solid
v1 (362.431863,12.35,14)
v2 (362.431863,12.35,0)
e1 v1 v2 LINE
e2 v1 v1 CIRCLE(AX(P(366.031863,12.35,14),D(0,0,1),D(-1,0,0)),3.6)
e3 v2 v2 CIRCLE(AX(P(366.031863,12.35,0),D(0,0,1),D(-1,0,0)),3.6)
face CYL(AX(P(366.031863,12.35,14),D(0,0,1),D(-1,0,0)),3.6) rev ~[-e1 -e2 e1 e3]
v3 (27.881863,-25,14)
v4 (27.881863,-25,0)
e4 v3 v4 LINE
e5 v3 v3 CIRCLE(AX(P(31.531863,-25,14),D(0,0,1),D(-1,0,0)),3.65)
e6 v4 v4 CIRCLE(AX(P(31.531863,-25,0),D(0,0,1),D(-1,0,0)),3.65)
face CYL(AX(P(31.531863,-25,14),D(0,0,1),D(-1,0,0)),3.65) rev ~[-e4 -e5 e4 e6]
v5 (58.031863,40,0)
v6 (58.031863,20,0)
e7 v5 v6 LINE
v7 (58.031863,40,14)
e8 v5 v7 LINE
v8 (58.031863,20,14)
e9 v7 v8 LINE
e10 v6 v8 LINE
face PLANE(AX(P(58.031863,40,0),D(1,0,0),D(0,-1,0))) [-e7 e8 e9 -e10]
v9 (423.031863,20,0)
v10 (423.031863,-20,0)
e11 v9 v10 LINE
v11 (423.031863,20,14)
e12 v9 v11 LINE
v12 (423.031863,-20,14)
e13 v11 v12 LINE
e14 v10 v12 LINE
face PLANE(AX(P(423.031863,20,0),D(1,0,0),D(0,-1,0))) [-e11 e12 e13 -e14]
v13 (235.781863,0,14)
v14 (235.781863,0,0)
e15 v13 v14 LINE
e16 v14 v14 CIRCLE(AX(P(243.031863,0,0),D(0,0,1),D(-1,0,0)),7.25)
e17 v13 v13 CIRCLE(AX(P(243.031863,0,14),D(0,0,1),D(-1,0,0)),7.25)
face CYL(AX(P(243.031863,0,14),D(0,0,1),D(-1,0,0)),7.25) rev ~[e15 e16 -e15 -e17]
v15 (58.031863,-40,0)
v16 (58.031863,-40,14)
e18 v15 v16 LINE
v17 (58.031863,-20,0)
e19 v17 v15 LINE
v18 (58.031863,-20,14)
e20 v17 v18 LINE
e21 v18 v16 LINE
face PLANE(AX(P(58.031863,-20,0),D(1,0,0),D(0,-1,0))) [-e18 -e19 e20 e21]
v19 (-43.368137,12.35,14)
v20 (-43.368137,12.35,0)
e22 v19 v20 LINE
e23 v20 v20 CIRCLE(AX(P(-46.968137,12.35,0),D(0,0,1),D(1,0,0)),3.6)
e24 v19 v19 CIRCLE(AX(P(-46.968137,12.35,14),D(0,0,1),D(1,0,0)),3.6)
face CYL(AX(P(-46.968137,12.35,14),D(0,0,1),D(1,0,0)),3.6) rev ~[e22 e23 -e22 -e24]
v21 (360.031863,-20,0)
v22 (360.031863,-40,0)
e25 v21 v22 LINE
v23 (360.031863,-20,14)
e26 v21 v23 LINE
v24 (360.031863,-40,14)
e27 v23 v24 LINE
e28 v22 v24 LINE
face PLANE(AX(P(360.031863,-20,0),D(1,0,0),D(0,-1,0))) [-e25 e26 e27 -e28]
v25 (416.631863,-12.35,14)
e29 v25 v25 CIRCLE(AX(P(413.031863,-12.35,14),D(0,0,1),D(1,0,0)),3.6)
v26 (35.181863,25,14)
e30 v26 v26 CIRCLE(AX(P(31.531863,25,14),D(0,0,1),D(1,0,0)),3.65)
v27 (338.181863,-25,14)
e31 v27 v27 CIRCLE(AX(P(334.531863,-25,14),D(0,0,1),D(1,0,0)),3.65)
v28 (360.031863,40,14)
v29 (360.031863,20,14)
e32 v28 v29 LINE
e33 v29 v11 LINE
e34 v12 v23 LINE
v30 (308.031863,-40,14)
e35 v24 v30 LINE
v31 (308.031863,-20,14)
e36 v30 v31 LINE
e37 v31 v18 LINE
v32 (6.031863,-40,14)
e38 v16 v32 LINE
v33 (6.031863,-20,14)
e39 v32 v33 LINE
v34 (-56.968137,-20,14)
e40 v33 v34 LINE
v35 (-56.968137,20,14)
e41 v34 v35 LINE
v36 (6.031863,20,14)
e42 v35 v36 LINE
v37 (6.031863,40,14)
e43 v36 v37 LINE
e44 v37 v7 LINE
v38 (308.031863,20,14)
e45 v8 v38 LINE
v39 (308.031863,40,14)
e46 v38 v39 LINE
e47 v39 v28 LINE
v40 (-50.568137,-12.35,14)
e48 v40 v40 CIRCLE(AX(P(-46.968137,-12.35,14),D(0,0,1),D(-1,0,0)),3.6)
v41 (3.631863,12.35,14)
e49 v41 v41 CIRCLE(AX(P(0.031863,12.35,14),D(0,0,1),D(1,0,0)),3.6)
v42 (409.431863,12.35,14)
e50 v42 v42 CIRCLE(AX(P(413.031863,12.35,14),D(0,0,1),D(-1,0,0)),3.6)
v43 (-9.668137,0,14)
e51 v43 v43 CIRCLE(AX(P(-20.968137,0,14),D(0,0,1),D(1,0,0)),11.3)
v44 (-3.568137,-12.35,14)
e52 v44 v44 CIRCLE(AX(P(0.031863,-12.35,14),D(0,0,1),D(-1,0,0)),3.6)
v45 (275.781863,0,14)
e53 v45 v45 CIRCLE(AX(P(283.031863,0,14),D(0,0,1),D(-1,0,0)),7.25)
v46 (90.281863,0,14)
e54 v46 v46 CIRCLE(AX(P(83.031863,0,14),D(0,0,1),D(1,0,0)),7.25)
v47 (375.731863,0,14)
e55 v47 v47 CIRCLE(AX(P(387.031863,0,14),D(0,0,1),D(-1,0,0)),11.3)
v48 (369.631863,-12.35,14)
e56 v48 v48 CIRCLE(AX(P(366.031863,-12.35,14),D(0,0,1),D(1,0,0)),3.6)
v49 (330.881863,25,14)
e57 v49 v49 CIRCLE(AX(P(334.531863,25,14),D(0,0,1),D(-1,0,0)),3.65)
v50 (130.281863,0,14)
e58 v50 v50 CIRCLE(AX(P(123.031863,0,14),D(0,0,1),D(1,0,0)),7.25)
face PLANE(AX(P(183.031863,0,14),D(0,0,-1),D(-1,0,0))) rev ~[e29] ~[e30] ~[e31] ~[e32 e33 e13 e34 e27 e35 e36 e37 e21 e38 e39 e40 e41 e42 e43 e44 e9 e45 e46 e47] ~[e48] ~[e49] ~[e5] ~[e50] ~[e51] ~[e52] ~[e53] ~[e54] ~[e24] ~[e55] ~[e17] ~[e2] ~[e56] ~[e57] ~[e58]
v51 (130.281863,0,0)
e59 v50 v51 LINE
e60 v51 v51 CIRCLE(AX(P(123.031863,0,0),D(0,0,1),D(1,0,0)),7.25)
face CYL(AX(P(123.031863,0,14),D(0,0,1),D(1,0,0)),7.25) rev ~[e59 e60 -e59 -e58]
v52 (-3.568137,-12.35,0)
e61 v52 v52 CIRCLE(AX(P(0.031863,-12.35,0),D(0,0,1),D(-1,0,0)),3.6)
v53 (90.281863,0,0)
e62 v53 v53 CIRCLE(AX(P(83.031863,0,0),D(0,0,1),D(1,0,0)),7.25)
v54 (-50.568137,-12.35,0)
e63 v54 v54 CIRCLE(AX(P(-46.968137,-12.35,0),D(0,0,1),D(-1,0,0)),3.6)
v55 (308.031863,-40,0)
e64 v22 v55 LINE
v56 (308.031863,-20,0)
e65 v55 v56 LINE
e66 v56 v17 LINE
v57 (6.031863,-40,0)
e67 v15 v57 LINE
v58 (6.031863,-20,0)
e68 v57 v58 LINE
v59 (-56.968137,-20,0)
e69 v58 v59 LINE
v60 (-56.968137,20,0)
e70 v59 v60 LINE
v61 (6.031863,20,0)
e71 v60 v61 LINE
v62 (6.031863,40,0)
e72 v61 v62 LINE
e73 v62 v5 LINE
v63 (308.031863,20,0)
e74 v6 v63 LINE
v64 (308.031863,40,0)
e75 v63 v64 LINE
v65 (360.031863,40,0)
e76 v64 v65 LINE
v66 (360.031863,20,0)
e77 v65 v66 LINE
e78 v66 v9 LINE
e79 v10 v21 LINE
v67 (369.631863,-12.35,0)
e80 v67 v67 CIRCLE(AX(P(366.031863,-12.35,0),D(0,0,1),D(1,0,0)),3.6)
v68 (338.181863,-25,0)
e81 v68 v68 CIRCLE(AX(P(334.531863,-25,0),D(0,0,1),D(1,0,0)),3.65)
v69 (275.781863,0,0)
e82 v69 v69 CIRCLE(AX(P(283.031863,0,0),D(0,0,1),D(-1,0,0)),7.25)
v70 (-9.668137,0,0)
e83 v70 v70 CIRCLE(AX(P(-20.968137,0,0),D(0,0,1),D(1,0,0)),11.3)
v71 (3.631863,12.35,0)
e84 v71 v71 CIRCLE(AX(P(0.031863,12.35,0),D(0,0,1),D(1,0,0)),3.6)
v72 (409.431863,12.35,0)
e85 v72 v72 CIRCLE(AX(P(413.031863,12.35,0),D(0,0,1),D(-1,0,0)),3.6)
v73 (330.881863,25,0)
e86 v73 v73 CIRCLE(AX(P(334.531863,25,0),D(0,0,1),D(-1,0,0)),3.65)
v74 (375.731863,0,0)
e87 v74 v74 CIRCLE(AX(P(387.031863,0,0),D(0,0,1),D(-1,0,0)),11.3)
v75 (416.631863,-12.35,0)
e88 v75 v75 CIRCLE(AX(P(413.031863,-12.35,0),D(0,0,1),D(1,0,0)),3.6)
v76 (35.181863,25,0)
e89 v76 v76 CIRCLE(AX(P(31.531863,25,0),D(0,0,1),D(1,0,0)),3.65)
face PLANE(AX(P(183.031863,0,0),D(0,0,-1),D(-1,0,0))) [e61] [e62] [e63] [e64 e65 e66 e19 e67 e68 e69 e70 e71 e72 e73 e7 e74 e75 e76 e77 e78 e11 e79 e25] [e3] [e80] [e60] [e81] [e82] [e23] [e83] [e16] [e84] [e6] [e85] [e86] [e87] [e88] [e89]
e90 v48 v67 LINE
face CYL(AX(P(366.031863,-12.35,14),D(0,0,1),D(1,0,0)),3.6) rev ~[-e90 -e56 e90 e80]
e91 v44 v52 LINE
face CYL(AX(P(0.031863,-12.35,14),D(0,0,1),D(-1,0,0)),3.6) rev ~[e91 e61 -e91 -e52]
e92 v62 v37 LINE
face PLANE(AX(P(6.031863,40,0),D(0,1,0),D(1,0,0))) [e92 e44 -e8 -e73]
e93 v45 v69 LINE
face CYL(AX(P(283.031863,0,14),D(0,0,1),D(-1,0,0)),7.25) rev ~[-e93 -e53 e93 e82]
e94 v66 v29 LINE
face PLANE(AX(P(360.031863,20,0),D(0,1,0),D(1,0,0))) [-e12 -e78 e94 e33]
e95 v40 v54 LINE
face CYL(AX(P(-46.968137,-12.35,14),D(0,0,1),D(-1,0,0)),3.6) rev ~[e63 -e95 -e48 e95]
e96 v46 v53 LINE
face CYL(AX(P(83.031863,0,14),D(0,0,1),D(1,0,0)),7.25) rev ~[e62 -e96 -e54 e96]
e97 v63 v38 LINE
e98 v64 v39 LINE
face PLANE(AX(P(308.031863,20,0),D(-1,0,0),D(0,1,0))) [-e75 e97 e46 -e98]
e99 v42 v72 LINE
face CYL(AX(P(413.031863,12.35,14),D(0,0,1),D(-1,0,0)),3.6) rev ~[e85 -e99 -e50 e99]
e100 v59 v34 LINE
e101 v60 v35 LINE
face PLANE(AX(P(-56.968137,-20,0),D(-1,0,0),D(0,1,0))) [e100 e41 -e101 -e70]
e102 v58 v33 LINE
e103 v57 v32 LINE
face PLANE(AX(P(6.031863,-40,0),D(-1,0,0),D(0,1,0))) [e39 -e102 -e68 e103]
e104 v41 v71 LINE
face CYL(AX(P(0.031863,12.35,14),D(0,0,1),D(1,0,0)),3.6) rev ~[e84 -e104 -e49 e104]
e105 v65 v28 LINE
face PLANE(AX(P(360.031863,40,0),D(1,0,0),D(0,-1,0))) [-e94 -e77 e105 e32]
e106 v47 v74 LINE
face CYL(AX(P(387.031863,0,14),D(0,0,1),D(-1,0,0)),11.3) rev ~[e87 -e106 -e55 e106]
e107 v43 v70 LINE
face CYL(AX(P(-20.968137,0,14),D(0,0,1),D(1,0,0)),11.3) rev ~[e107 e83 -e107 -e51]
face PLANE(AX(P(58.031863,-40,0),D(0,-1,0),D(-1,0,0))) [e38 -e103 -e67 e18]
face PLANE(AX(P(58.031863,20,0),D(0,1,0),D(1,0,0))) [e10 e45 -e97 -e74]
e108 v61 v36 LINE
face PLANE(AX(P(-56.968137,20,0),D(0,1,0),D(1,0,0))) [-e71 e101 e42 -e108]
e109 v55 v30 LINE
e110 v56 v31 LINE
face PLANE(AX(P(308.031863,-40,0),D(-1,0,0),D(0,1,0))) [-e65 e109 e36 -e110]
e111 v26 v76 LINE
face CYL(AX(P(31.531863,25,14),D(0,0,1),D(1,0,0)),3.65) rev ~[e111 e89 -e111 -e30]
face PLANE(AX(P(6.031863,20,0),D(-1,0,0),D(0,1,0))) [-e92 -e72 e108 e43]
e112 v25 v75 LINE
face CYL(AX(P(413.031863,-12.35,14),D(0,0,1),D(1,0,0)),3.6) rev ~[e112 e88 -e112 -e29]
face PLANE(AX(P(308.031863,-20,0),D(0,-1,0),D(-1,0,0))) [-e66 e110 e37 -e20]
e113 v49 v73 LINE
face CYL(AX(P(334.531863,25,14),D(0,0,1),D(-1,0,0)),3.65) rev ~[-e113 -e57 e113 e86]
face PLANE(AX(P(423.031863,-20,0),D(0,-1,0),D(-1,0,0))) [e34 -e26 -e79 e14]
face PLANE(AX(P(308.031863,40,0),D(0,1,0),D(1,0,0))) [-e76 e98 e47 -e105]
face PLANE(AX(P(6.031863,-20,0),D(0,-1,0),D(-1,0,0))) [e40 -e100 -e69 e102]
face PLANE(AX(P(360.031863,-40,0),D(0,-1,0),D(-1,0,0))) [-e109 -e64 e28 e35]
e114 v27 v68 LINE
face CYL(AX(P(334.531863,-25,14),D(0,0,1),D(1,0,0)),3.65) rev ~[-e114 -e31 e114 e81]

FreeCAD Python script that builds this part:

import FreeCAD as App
import Part
import Sketcher
Q = App.Units.Quantity

doc = App.newDocument("Part")
params = doc.addObject("Spreadsheet::Sheet", "Params")
for row, (alias, value) in enumerate([
    ("sketch1_width", "63 mm"),
    ("sketch1_width2", "52 mm"),
    ("sketch1_width3", "250 mm"),
    ("sketch1_height", "40 mm"),
    ("sketch1_height2", "20 mm"),
    ("pad1_length", "14 mm"),
    ("sketch2_diameter", "22.6 mm"),
    ("sketch2_diameter2", "7.2 mm"),
    ("sketch2_diameter3", "7.3 mm"),
    ("sketch2_diameter4", "14.5 mm"),
    ("pocket1_length", "14 mm"),
], start=1):
    params.set(f"A{row}", alias)
    params.set(f"B{row}", "=" + value)
    params.setAlias(f"B{row}", alias)

body = doc.addObject("PartDesign::Body", "Body")

# Sketch on XY plane
sketch1 = doc.addObject("Sketcher::SketchObject", "Sketch")
body.addObject(sketch1)
sketch1.AttachmentSupport = (doc.XY_Plane, [""])
sketch1.MapMode = "FlatFace"
sketch1.addGeometry([
    Part.LineSegment(App.Vector(-57, 20, 0), App.Vector(-57, -20, 0)),  # 0
    Part.LineSegment(App.Vector(-57, -20, 0), App.Vector(6, -20, 0)),  # 1
    Part.LineSegment(App.Vector(6, -20, 0), App.Vector(6, -40, 0)),  # 2
    Part.LineSegment(App.Vector(6, -40, 0), App.Vector(58, -40, 0)),  # 3
    Part.LineSegment(App.Vector(58, -40, 0), App.Vector(58, -20, 0)),  # 4
    Part.LineSegment(App.Vector(58, -20, 0), App.Vector(308, -20, 0)),  # 5
    Part.LineSegment(App.Vector(308, -20, 0), App.Vector(308, -40, 0)),  # 6
    Part.LineSegment(App.Vector(308, -40, 0), App.Vector(360, -40, 0)),  # 7
    Part.LineSegment(App.Vector(360, -40, 0), App.Vector(360, -20, 0)),  # 8
    Part.LineSegment(App.Vector(360, -20, 0), App.Vector(423, -20, 0)),  # 9
    Part.LineSegment(App.Vector(423, -20, 0), App.Vector(423, 20, 0)),  # 10
    Part.LineSegment(App.Vector(423, 20, 0), App.Vector(360, 20, 0)),  # 11
    Part.LineSegment(App.Vector(360, 20, 0), App.Vector(360, 40, 0)),  # 12
    Part.LineSegment(App.Vector(360, 40, 0), App.Vector(308, 40, 0)),  # 13
    Part.LineSegment(App.Vector(308, 40, 0), App.Vector(308, 20, 0)),  # 14
    Part.LineSegment(App.Vector(308, 20, 0), App.Vector(58, 20, 0)),  # 15
    Part.LineSegment(App.Vector(58, 20, 0), App.Vector(58, 40, 0)),  # 16
    Part.LineSegment(App.Vector(58, 40, 0), App.Vector(6, 40, 0)),  # 17
    Part.LineSegment(App.Vector(6, 40, 0), App.Vector(6, 20, 0)),  # 18
    Part.LineSegment(App.Vector(6, 20, 0), App.Vector(-57, 20, 0)),  # 19
], False)
sketch1.addConstraint([
    Sketcher.Constraint("Coincident", 0, 2, 1, 1),
    Sketcher.Constraint("Coincident", 1, 2, 2, 1),
    Sketcher.Constraint("Coincident", 2, 2, 3, 1),
    Sketcher.Constraint("Coincident", 3, 2, 4, 1),
    Sketcher.Constraint("Coincident", 4, 2, 5, 1),
    Sketcher.Constraint("Coincident", 5, 2, 6, 1),
    Sketcher.Constraint("Coincident", 6, 2, 7, 1),
    Sketcher.Constraint("Coincident", 7, 2, 8, 1),
    Sketcher.Constraint("Coincident", 8, 2, 9, 1),
    Sketcher.Constraint("Coincident", 9, 2, 10, 1),
    Sketcher.Constraint("Coincident", 10, 2, 11, 1),
    Sketcher.Constraint("Coincident", 11, 2, 12, 1),
    Sketcher.Constraint("Coincident", 12, 2, 13, 1),
    Sketcher.Constraint("Coincident", 13, 2, 14, 1),
    Sketcher.Constraint("Coincident", 14, 2, 15, 1),
    Sketcher.Constraint("Coincident", 15, 2, 16, 1),
    Sketcher.Constraint("Coincident", 16, 2, 17, 1),
    Sketcher.Constraint("Coincident", 17, 2, 18, 1),
    Sketcher.Constraint("Coincident", 18, 2, 19, 1),
    Sketcher.Constraint("Coincident", 19, 2, 0, 1),
    Sketcher.Constraint("Vertical", 0),
    Sketcher.Constraint("Horizontal", 1),
    Sketcher.Constraint("Vertical", 2),
    Sketcher.Constraint("Horizontal", 3),
    Sketcher.Constraint("Vertical", 4),
    Sketcher.Constraint("Horizontal", 5),
    Sketcher.Constraint("Vertical", 6),
    Sketcher.Constraint("Horizontal", 7),
    Sketcher.Constraint("Vertical", 8),
    Sketcher.Constraint("Horizontal", 9),
    Sketcher.Constraint("Vertical", 10),
    Sketcher.Constraint("Horizontal", 11),
    Sketcher.Constraint("Vertical", 12),
    Sketcher.Constraint("Horizontal", 13),
    Sketcher.Constraint("Vertical", 14),
    Sketcher.Constraint("Horizontal", 15),
    Sketcher.Constraint("Vertical", 16),
    Sketcher.Constraint("Horizontal", 17),
    Sketcher.Constraint("Vertical", 18),
    Sketcher.Constraint("Horizontal", 19),
    Sketcher.Constraint("Symmetric", 8, 2, 11, 2, -1),
    Sketcher.Constraint("Symmetric", 6, 2, 13, 2, -1),
    Sketcher.Constraint("Symmetric", 4, 2, 15, 2, -1),
    Sketcher.Constraint("Symmetric", 2, 2, 17, 2, -1),
    Sketcher.Constraint("Horizontal", 1, 2, 4, 2),
    Sketcher.Constraint("Horizontal", 3, 2, 6, 2),
    Sketcher.Constraint("Horizontal", 5, 2, 8, 2),
    Sketcher.Constraint("Horizontal", 15, 2, 18, 2),
    Sketcher.Constraint("Equal", 3, 7),
    Sketcher.Constraint("Equal", 1, 9),
    Sketcher.Constraint("DistanceX", 1, 1, 1, 2, Q("63 mm")),
    Sketcher.Constraint("DistanceX", 3, 1, 3, 2, Q("52 mm")),
    Sketcher.Constraint("DistanceX", 5, 1, 5, 2, Q("250 mm")),
    Sketcher.Constraint("DistanceY", 0, 2, 0, 1, Q("40 mm")),
    Sketcher.Constraint("DistanceY", 2, 2, 2, 1, Q("20 mm")),
    Sketcher.Constraint("DistanceX", 0, 2, -1, 1, Q("56.968137 mm")),
])
sketch1.setExpression("Constraints[50]", "Params.sketch1_width")
sketch1.setExpression("Constraints[51]", "Params.sketch1_width2")
sketch1.setExpression("Constraints[52]", "Params.sketch1_width3")
sketch1.setExpression("Constraints[53]", "Params.sketch1_height")
sketch1.setExpression("Constraints[54]", "Params.sketch1_height2")
pad1 = doc.addObject("PartDesign::Pad", "Pad")
body.addObject(pad1)
pad1.Profile = sketch1
pad1.setExpression("Length", "Params.pad1_length")

# Sketch on XY plane
sketch2 = doc.addObject("Sketcher::SketchObject", "Sketch001")
body.addObject(sketch2)
sketch2.AttachmentSupport = (doc.XY_Plane, [""])
sketch2.MapMode = "FlatFace"
sketch2.AttachmentOffset = App.Placement(App.Vector(0, 0, 14), App.Rotation())
sketch2.addGeometry([
    Part.Circle(App.Vector(-21, 0, 0), App.Vector(0, 0, 1), 11.3),  # 0
    Part.Circle(App.Vector(-47, 12.3, 0), App.Vector(0, 0, 1), 3.6),  # 1
    Part.Circle(App.Vector(0, 12.3, 0), App.Vector(0, 0, 1), 3.6),  # 2
    Part.Circle(App.Vector(0, -12.3, 0), App.Vector(0, 0, 1), 3.6),  # 3
    Part.Circle(App.Vector(-47, -12.3, 0), App.Vector(0, 0, 1), 3.6),  # 4
    Part.Circle(App.Vector(31.5, 25, 0), App.Vector(0, 0, 1), 3.6),  # 5
    Part.Circle(App.Vector(31.5, -25, 0), App.Vector(0, 0, 1), 3.6),  # 6
    Part.Circle(App.Vector(83, 0, 0), App.Vector(0, 0, 1), 7.2),  # 7
    Part.Circle(App.Vector(123, 0, 0), App.Vector(0, 0, 1), 7.2),  # 8
    Part.Circle(App.Vector(283, 0, 0), App.Vector(0, 0, 1), 7.2),  # 9
    Part.Circle(App.Vector(243, 0, 0), App.Vector(0, 0, 1), 7.2),  # 10
    Part.Circle(App.Vector(334.5, -25, 0), App.Vector(0, 0, 1), 3.6),  # 11
    Part.Circle(App.Vector(334.5, 25, 0), App.Vector(0, 0, 1), 3.6),  # 12
    Part.Circle(App.Vector(366, -12.3, 0), App.Vector(0, 0, 1), 3.6),  # 13
    Part.Circle(App.Vector(366, 12.3, 0), App.Vector(0, 0, 1), 3.6),  # 14
    Part.Circle(App.Vector(387, 0, 0), App.Vector(0, 0, 1), 11.3),  # 15
    Part.Circle(App.Vector(413, -12.3, 0), App.Vector(0, 0, 1), 3.6),  # 16
    Part.Circle(App.Vector(413, 12.3, 0), App.Vector(0, 0, 1), 3.6),  # 17
], False)
sketch2.addConstraint([
    Sketcher.Constraint("Equal", 1, 2),
    Sketcher.Constraint("Equal", 2, 3),
    Sketcher.Constraint("Equal", 3, 4),
    Sketcher.Constraint("Equal", 5, 6),
    Sketcher.Constraint("Equal", 7, 8),
    Sketcher.Constraint("Equal", 8, 9),
    Sketcher.Constraint("Equal", 9, 10),
    Sketcher.Constraint("Equal", 6, 11),
    Sketcher.Constraint("Equal", 11, 12),
    Sketcher.Constraint("Equal", 4, 13),
    Sketcher.Constraint("Equal", 13, 14),
    Sketcher.Constraint("Equal", 0, 15),
    Sketcher.Constraint("Equal", 14, 16),
    Sketcher.Constraint("Equal", 16, 17),
    Sketcher.Constraint("Symmetric", 2, 3, 3, 3, -1),
    Sketcher.Constraint("Symmetric", 1, 3, 4, 3, -1),
    Sketcher.Constraint("Symmetric", 5, 3, 6, 3, -1),
    Sketcher.Constraint("Symmetric", 11, 3, 12, 3, -1),
    Sketcher.Constraint("Symmetric", 13, 3, 14, 3, -1),
    Sketcher.Constraint("Symmetric", 16, 3, 17, 3, -1),
    Sketcher.Constraint("PointOnObject", 0, 3, -1),
    Sketcher.Constraint("PointOnObject", 7, 3, -1),
    Sketcher.Constraint("PointOnObject", 8, 3, -1),
    Sketcher.Constraint("PointOnObject", 9, 3, -1),
    Sketcher.Constraint("PointOnObject", 10, 3, -1),
    Sketcher.Constraint("PointOnObject", 15, 3, -1),
    Sketcher.Constraint("Horizontal", 1, 3, 2, 3),
    Sketcher.Constraint("Horizontal", 6, 3, 11, 3),
    Sketcher.Constraint("Horizontal", 4, 3, 13, 3),
    Sketcher.Constraint("Horizontal", 13, 3, 16, 3),
    Sketcher.Constraint("Diameter", 0, Q("22.6 mm")),
    Sketcher.Constraint("Diameter", 1, Q("7.2 mm")),
    Sketcher.Constraint("Diameter", 5, Q("7.3 mm")),
    Sketcher.Constraint("Diameter", 7, Q("14.5 mm")),
    Sketcher.Constraint("DistanceY", -1, 1, 5, 3, Q("25 mm")),
    Sketcher.Constraint("DistanceX", 1, 3, 0, 3, Q("26 mm")),
    Sketcher.Constraint("DistanceX", 0, 3, 2, 3, Q("21 mm")),
    Sketcher.Constraint("DistanceX", 2, 3, 7, 3, Q("83 mm")),
    Sketcher.Constraint("DistanceX", 7, 3, 8, 3, Q("40 mm")),
    Sketcher.Constraint("DistanceX", 8, 3, 9, 3, Q("160 mm")),
    Sketcher.Constraint("DistanceX", 10, 3, 9, 3, Q("40 mm")),
    Sketcher.Constraint("DistanceX", 6, 3, 11, 3, Q("303 mm")),
    Sketcher.Constraint("DistanceX", 9, 3, 13, 3, Q("83 mm")),
    Sketcher.Constraint("DistanceX", 13, 3, 15, 3, Q("21 mm")),
    Sketcher.Constraint("DistanceX", 15, 3, 16, 3, Q("26 mm")),
    Sketcher.Constraint("DistanceY", 3, 3, 2, 3, Q("24.7 mm")),
    Sketcher.Constraint("DistanceX", 2, 3, 5, 3, Q("31.5 mm")),
    Sketcher.Constraint("DistanceX", 0, 3, -1, 1, Q("20.968137 mm")),
])
sketch2.setExpression("Constraints[30]", "Params.sketch2_diameter")
sketch2.setExpression("Constraints[31]", "Params.sketch2_diameter2")
sketch2.setExpression("Constraints[32]", "Params.sketch2_diameter3")
sketch2.setExpression("Constraints[33]", "Params.sketch2_diameter4")
pocket1 = doc.addObject("PartDesign::Pocket", "Pocket")
body.addObject(pocket1)
pocket1.Profile = sketch2
pocket1.setExpression("Length", "Params.pocket1_length")

doc.recompute()
